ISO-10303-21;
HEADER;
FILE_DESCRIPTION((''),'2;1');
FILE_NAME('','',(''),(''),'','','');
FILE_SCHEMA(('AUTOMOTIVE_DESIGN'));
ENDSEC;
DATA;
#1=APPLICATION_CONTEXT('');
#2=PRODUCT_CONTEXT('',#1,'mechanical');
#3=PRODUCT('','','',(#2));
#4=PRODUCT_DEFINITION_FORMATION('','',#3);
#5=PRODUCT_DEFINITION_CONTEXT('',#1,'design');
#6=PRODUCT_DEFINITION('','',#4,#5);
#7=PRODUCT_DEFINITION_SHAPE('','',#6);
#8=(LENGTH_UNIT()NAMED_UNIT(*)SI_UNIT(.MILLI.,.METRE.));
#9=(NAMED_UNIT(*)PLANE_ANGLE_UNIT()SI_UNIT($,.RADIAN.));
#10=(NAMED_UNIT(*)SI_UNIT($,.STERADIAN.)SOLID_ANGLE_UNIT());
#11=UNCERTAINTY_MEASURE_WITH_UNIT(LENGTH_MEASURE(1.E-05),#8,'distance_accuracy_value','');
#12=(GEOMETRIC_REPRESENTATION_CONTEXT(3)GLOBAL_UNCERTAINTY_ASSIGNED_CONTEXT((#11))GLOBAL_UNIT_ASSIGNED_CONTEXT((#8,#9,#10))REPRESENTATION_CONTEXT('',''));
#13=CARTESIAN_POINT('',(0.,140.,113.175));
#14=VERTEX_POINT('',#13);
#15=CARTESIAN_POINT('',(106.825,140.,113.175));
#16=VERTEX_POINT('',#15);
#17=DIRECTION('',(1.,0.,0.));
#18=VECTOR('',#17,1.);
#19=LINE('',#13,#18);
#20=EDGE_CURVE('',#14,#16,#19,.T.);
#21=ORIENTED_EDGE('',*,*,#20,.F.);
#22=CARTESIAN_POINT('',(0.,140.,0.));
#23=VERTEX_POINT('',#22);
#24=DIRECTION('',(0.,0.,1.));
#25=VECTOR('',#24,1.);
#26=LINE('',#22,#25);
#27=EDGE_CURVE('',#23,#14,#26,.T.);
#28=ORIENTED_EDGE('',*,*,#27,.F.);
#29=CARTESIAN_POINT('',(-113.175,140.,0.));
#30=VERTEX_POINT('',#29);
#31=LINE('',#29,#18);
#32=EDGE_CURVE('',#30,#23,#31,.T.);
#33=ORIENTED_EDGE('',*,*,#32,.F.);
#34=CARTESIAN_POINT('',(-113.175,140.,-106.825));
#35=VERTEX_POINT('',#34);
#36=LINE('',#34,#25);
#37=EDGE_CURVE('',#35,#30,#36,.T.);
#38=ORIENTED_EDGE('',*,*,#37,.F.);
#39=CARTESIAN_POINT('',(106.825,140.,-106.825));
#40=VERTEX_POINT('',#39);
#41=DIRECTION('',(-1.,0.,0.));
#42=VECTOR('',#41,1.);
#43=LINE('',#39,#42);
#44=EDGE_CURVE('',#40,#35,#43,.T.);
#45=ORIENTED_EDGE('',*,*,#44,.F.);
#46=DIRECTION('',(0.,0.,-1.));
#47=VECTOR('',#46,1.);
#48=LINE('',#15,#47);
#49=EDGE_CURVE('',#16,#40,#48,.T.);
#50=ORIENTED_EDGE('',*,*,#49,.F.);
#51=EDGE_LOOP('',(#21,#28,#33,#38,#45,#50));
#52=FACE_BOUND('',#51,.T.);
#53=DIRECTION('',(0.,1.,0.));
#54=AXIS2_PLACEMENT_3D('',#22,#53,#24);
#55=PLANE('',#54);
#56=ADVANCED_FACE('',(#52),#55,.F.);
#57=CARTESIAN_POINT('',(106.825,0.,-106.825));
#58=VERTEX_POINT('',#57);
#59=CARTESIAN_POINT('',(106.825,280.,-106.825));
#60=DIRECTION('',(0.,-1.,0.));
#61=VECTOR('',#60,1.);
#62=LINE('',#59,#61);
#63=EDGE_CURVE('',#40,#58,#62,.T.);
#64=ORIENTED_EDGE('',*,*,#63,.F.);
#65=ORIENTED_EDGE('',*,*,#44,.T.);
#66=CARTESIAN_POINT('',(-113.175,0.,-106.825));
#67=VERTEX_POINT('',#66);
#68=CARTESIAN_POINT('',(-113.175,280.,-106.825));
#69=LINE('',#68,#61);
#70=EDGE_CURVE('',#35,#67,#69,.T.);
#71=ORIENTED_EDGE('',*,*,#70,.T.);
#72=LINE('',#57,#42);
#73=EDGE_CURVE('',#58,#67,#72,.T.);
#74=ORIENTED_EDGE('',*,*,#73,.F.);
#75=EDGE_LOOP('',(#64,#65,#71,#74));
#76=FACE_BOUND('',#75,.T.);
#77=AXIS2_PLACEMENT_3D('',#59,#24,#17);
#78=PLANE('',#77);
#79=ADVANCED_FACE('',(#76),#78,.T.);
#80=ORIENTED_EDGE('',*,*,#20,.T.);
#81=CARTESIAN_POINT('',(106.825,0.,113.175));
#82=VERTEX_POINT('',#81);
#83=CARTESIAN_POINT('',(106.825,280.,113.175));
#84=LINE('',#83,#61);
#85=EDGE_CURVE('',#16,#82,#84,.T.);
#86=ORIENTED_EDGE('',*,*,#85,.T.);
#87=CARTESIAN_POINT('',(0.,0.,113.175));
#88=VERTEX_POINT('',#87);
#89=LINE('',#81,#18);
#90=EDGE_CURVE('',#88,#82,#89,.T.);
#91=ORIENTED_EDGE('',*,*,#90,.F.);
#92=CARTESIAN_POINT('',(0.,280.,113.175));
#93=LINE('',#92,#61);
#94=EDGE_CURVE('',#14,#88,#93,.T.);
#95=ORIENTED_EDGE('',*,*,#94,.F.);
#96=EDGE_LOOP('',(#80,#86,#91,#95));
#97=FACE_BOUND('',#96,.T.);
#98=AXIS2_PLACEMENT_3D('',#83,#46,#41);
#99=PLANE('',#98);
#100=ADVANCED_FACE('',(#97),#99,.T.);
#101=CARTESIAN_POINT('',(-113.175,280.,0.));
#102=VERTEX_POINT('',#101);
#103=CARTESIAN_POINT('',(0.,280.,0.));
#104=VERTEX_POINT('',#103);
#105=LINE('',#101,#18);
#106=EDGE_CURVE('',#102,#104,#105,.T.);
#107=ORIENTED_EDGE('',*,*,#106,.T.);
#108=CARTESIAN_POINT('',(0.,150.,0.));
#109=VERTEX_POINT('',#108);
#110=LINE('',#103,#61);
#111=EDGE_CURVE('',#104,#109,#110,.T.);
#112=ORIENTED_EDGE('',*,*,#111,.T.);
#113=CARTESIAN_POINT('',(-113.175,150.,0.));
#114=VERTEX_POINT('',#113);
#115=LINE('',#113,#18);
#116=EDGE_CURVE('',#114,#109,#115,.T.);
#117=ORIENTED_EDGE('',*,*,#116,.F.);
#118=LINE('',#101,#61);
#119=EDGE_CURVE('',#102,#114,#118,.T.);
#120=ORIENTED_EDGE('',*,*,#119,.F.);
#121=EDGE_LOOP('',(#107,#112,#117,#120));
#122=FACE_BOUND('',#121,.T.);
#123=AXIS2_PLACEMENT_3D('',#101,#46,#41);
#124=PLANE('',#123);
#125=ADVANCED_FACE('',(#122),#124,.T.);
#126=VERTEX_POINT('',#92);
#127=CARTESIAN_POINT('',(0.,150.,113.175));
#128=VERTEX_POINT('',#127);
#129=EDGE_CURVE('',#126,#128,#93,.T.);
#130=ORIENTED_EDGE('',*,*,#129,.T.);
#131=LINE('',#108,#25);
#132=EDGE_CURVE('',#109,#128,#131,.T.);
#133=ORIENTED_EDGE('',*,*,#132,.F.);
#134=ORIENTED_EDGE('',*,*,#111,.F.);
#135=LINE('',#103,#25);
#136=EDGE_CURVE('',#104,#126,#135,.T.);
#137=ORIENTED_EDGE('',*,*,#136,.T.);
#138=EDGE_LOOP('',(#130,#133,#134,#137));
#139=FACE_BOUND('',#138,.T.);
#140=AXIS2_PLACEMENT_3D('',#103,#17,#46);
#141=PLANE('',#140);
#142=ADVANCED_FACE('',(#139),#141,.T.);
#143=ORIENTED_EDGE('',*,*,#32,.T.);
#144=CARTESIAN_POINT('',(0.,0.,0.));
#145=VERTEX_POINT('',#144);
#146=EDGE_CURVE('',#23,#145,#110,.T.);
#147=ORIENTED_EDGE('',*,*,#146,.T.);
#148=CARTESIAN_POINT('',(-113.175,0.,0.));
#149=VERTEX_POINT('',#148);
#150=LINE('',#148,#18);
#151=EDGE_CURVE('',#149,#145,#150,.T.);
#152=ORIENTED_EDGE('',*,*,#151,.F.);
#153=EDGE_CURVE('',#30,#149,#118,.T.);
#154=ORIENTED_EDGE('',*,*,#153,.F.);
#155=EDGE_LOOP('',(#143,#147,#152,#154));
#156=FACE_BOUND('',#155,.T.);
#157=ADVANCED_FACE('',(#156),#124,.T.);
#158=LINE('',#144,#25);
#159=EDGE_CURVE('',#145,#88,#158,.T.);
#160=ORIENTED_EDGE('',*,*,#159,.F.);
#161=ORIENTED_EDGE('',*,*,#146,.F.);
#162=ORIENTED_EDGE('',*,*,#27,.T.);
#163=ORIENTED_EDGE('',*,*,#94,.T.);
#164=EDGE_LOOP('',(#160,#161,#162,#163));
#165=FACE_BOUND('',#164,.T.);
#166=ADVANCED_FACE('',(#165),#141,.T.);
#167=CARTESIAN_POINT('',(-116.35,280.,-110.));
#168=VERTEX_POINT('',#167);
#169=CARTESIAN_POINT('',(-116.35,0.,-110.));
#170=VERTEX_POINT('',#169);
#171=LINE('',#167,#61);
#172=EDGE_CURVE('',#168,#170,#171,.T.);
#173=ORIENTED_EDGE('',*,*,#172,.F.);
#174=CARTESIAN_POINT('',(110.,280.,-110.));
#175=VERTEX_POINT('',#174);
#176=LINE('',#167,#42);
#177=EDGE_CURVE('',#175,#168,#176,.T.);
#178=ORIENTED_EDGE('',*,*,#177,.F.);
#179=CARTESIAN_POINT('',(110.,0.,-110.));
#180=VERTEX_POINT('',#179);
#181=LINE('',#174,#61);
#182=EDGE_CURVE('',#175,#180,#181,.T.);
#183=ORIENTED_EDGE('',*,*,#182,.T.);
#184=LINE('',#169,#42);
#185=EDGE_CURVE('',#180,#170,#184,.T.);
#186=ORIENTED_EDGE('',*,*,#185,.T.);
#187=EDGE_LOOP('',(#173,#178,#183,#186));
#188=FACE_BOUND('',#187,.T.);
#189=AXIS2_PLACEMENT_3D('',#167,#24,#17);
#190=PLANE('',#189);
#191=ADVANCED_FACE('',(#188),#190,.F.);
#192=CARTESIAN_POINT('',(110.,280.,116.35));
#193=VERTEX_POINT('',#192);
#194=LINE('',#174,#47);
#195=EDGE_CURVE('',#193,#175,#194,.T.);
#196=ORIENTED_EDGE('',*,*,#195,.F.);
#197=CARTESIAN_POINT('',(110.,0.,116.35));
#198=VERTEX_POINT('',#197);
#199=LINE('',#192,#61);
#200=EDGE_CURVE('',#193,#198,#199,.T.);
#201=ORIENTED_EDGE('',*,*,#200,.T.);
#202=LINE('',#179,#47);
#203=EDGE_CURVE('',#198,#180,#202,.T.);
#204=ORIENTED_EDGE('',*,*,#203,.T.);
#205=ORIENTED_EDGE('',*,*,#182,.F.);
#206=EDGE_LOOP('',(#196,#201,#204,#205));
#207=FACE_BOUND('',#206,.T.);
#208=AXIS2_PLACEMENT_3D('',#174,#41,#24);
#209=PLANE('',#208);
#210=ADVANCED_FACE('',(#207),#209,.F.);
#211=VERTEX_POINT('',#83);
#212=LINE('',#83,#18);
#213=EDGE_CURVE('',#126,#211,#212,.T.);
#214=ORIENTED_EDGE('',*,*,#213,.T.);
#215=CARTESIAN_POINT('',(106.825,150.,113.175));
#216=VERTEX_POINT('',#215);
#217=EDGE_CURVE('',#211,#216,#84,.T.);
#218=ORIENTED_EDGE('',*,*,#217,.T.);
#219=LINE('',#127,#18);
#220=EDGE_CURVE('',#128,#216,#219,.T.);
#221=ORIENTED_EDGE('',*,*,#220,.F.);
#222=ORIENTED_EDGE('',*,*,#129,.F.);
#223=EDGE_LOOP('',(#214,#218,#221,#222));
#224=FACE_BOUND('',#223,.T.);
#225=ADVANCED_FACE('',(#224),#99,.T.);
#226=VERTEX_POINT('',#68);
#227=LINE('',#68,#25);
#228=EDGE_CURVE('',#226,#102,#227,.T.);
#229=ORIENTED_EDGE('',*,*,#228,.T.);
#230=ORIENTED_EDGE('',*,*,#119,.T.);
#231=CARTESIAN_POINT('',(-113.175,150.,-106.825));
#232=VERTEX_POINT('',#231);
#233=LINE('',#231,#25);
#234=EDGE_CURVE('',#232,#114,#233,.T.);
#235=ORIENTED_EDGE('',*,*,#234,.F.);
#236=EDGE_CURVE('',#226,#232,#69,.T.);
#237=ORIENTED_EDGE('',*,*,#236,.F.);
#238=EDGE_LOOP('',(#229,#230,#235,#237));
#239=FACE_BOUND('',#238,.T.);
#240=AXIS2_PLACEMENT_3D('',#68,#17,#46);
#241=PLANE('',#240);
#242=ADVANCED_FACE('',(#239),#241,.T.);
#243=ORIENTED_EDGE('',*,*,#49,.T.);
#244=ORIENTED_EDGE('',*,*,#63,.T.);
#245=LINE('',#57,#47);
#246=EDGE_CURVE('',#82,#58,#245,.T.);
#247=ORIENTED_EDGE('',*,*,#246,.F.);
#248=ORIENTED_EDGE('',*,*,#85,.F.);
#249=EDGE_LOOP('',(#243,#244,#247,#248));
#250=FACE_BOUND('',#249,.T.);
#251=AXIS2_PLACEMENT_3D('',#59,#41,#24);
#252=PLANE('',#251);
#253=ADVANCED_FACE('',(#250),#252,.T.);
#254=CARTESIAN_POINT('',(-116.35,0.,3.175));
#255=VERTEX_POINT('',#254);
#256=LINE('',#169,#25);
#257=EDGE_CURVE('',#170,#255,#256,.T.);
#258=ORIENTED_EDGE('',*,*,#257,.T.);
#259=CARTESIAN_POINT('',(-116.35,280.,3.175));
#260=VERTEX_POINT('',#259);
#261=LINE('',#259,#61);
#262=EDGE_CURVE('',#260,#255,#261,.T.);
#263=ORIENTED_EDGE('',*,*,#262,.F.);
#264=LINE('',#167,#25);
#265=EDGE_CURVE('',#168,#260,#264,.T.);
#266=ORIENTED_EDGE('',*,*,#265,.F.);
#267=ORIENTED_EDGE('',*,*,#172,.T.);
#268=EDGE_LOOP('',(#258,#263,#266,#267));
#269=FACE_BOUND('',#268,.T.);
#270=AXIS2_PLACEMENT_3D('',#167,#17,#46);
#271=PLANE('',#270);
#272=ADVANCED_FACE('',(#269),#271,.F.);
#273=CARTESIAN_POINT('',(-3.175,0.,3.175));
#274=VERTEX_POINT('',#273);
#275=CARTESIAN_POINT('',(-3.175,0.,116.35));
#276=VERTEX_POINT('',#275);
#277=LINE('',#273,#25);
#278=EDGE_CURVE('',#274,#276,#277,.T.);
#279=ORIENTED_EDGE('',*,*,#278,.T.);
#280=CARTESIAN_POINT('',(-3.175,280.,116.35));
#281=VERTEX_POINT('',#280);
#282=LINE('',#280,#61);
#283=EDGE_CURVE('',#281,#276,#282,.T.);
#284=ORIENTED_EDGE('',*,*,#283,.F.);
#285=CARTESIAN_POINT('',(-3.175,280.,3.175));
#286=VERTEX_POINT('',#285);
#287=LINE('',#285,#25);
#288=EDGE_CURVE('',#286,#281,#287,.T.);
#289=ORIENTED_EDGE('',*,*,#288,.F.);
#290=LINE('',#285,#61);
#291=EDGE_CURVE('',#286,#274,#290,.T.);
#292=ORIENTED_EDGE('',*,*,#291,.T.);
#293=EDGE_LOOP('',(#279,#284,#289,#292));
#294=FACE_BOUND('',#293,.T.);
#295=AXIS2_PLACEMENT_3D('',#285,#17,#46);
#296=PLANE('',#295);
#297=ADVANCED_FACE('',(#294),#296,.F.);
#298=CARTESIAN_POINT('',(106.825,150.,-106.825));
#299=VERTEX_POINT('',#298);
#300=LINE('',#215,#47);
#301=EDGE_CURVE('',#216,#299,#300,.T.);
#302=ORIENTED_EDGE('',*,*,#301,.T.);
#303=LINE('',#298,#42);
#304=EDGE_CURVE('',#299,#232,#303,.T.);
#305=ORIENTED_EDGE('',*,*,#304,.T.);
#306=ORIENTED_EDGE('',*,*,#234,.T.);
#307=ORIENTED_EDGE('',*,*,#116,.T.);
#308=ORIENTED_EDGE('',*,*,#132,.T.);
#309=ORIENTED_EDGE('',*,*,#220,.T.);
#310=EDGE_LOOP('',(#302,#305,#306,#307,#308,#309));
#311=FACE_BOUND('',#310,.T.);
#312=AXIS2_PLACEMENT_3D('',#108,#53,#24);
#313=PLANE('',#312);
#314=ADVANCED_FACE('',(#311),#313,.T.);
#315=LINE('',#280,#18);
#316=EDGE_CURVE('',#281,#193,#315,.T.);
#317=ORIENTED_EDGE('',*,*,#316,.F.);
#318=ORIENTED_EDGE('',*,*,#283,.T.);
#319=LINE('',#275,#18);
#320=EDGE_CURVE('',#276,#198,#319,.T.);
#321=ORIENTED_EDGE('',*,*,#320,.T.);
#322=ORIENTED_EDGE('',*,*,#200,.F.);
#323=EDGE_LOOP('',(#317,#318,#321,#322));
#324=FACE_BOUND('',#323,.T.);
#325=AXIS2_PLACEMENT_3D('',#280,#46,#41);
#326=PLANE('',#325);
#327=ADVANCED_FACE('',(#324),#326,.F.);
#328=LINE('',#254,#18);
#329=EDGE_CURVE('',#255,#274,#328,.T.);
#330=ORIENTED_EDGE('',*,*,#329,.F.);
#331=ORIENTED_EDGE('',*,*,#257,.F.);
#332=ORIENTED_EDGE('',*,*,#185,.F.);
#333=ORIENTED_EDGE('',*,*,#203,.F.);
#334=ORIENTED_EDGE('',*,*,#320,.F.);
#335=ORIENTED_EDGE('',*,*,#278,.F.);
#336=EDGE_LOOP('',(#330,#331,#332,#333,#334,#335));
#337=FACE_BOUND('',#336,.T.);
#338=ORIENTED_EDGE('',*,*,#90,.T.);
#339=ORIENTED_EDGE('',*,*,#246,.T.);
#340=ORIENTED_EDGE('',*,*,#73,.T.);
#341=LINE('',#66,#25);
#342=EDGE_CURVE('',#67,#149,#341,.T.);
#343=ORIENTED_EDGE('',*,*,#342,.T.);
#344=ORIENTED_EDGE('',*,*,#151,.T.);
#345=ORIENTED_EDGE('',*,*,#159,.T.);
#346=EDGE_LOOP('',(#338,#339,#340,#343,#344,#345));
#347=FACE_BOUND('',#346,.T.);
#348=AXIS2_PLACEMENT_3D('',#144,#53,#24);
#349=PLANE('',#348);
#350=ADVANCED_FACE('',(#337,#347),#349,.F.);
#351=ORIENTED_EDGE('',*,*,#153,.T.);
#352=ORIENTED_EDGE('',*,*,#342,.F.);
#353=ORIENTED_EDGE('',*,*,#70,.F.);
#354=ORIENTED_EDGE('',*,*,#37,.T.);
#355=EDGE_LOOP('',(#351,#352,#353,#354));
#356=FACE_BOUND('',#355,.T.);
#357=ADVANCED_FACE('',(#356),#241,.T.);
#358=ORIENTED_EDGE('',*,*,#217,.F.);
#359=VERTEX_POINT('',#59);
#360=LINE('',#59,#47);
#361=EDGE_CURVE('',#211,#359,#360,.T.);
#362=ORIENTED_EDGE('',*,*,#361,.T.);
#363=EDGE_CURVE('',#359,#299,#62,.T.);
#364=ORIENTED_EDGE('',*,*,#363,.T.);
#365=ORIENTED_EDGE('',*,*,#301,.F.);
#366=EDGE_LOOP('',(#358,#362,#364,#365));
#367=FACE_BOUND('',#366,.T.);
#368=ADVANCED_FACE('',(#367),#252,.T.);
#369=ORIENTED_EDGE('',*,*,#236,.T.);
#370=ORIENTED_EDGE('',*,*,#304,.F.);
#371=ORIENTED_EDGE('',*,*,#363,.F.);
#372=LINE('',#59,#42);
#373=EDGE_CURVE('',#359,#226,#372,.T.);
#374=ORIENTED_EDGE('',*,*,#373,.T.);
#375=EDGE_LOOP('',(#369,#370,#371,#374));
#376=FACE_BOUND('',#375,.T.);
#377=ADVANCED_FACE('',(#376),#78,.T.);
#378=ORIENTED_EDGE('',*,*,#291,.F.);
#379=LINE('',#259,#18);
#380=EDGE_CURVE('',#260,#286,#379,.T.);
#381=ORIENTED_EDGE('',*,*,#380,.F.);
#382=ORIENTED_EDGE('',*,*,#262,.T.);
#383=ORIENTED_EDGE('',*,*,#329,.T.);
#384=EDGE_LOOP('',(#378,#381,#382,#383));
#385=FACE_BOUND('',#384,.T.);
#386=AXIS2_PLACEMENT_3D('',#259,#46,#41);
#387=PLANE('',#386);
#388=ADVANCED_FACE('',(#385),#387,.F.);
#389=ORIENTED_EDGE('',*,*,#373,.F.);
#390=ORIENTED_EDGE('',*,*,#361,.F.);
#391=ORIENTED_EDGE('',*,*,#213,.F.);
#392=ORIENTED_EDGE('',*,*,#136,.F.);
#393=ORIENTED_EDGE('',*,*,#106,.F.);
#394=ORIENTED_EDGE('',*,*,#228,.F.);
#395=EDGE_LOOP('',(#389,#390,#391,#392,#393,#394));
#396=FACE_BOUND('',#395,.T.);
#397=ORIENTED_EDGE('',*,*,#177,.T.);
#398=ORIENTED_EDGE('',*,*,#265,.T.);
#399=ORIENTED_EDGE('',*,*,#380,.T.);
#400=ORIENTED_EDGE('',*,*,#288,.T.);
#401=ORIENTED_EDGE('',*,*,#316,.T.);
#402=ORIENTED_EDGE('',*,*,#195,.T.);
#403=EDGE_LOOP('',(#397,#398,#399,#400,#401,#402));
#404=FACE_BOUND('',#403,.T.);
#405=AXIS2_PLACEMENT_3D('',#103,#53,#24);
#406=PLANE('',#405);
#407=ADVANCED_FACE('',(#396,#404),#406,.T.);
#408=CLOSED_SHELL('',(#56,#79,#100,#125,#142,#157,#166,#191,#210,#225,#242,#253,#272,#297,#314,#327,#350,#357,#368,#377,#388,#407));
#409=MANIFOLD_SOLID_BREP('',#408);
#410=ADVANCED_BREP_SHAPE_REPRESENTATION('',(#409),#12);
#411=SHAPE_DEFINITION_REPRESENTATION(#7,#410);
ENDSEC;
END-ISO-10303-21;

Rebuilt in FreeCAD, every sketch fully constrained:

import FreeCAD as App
import Part
import Sketcher
from FreeCAD import Vector


def add_polygon(sketch, points):
    """Adds a closed chain of lines whose ends are joined by coincident constraints."""
    first, n = sketch.GeometryCount, len(points)
    for a, b in zip(points, points[1:] + points[:1]):
        sketch.addGeometry(Part.LineSegment(App.Vector(*a, 0), App.Vector(*b, 0)), False)
    for i in range(n):
        sketch.addConstraint(Sketcher.Constraint("Coincident", first + i, 2, first + (i + 1) % n, 1))

doc = App.newDocument("Part")
body = doc.addObject("PartDesign::Body", "Body")

# Sketch on XZ plane
sketch1 = body.newObject("Sketcher::SketchObject", "Sketch")
sketch1.AttachmentSupport = (doc.getObject("XZ_Plane"), [""])
sketch1.MapMode = "FlatFace"
add_polygon(sketch1, [(-116, 3), (-3, 3), (-3, 116), (110, 116), (110, -110), (-116, -110)])  # lines 0-5
add_polygon(sketch1, [(0, 0), (-113, 0), (-113, -107), (107, -107), (107, 113), (0, 113)])  # lines 6-11
sketch1.addConstraint([
    Sketcher.Constraint("Horizontal", 0),
    Sketcher.Constraint("Vertical", 1),
    Sketcher.Constraint("Horizontal", 2),
    Sketcher.Constraint("Vertical", 3),
    Sketcher.Constraint("Horizontal", 4),
    Sketcher.Constraint("Vertical", 5),
    Sketcher.Constraint("Horizontal", 6),
    Sketcher.Constraint("Vertical", 7),
    Sketcher.Constraint("Horizontal", 8),
    Sketcher.Constraint("Vertical", 9),
    Sketcher.Constraint("Horizontal", 10),
    Sketcher.Constraint("Vertical", 11),
    Sketcher.Constraint("Coincident", 11, 2, -1, 1),
    Sketcher.Constraint("Equal", 0, 2),
    Sketcher.Constraint("Equal", 2, 6),
    Sketcher.Constraint("Equal", 6, 1),
    Sketcher.Constraint("Equal", 4, 3),
    Sketcher.Constraint("Equal", 10, 7),
    Sketcher.Constraint("Equal", 8, 9),
    Sketcher.Constraint("DistanceX", 8, 1, 8, 2, 220.0),
    Sketcher.Constraint("DistanceX", -1, 1, 2, 2, 110.0),
    Sketcher.Constraint("DistanceY", 3, 2, -1, 1, 110.0),
    Sketcher.Constraint("DistanceX", 4, 2, 4, 1, 226.35),
])
pad1 = body.newObject("PartDesign::Pad", "Pad")
pad1.Profile = sketch1
pad1.Length = 280
pad1.Reversed = True

# Sketch on XZ plane
sketch2 = body.newObject("Sketcher::SketchObject", "Sketch001")
sketch2.AttachmentSupport = (doc.getObject("XZ_Plane"), [""])
sketch2.MapMode = "FlatFace"
sketch2.AttachmentOffset = App.Placement(Vector(0, 0, -140), App.Rotation())
add_polygon(sketch2, [(-113, -107), (-113, 0), (0, 0), (0, 113), (107, 113), (107, -107)])  # lines 0-5
sketch2.addConstraint([
    Sketcher.Constraint("Vertical", 0),
    Sketcher.Constraint("Horizontal", 1),
    Sketcher.Constraint("Vertical", 2),
    Sketcher.Constraint("Horizontal", 3),
    Sketcher.Constraint("Vertical", 4),
    Sketcher.Constraint("Horizontal", 5),
    Sketcher.Constraint("Coincident", 1, 2, -1, 1),
    Sketcher.Constraint("Equal", 3, 0),
    Sketcher.Constraint("Equal", 1, 2),
    Sketcher.Constraint("DistanceX", 5, 2, 5, 1, 220.0),
    Sketcher.Constraint("DistanceX", 1, 1, 1, 2, 113.175),
])
pad2 = body.newObject("PartDesign::Pad", "Pad001")
pad2.Profile = sketch2
pad2.Length = 10
pad2.Reversed = True

doc.recompute()
